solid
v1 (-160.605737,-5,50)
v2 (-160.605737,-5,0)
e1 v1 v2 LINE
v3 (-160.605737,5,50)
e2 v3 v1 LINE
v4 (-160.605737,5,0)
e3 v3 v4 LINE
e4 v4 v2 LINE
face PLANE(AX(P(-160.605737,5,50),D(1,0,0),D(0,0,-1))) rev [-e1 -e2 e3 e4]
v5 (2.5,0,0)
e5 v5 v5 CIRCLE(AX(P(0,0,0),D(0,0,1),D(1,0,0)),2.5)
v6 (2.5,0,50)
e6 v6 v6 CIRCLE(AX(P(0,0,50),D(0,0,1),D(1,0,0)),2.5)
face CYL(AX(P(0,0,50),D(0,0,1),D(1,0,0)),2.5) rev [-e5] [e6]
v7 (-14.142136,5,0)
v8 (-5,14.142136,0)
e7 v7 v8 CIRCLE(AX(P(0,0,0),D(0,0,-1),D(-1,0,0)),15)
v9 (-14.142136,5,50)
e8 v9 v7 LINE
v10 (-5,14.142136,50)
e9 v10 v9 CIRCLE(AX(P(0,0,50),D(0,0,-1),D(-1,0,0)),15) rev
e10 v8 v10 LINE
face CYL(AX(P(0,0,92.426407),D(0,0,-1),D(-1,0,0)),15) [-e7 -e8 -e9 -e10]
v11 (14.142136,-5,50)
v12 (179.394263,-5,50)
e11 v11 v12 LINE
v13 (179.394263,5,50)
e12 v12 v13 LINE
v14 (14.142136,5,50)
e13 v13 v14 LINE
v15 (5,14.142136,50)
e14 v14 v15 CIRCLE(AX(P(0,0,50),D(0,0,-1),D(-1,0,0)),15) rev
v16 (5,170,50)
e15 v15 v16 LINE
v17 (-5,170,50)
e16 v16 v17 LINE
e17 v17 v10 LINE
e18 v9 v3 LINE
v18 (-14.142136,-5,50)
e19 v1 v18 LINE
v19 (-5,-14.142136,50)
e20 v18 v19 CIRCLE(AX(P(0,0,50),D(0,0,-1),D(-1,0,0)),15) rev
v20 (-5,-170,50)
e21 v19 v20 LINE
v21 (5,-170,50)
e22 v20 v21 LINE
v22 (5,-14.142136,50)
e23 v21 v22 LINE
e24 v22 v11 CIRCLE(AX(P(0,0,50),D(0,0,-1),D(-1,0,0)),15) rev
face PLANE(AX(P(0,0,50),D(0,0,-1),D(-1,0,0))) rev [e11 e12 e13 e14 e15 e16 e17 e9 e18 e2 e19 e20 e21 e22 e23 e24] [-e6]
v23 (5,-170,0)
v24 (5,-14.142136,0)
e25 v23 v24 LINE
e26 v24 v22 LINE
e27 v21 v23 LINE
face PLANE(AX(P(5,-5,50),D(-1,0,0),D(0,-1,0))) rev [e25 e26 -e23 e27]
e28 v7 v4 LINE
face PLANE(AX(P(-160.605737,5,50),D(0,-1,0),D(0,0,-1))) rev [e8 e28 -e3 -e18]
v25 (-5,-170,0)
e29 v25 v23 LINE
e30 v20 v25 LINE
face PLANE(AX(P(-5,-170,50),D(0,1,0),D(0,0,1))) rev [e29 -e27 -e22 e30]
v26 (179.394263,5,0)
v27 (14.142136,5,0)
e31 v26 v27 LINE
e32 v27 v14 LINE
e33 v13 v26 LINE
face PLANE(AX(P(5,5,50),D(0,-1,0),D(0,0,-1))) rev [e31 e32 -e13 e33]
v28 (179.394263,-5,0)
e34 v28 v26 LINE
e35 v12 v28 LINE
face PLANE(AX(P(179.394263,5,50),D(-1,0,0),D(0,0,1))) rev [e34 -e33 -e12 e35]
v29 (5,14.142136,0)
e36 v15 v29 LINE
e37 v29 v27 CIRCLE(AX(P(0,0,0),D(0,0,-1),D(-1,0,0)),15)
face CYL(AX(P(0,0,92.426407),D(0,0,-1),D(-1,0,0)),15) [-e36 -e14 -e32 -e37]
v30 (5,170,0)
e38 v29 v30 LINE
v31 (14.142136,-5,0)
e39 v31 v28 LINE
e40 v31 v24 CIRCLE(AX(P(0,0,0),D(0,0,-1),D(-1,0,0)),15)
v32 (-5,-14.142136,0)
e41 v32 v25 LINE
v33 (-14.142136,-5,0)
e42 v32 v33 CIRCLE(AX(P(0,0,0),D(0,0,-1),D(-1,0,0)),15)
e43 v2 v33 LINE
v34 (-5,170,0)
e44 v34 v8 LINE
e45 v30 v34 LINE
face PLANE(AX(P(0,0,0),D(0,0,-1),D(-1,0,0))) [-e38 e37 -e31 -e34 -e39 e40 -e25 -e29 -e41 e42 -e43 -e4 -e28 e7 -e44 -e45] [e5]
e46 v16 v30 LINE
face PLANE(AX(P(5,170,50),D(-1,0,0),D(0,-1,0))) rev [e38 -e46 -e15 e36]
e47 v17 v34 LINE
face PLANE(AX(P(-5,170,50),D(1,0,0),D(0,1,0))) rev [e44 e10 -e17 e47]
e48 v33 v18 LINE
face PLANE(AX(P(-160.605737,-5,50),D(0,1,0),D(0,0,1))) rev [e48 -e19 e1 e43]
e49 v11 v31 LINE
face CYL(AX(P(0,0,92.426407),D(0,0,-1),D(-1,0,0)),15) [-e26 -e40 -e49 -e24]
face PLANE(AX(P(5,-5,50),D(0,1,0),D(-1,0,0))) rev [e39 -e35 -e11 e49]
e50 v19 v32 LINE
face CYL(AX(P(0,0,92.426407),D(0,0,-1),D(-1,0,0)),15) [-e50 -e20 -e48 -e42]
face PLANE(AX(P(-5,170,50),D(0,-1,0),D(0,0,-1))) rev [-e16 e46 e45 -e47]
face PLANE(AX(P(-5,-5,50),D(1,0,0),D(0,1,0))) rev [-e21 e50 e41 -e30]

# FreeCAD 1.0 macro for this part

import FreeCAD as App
import Part
import Sketcher
Q = App.Units.Quantity

doc = App.newDocument("Part")
params = doc.addObject("Spreadsheet::Sheet", "Params")
for row, (alias, value) in enumerate([
    ("sketch1_width", "10 mm"),
    ("sketch1_height", "165 mm"),
    ("pad1_length", "50 mm"),
    ("sketch2_diameter", "30 mm"),
    ("pad2_length", "50 mm"),
    ("sketch3_diameter", "5 mm"),
    ("hole_diameter", "5 mm"),
], start=1):
    params.set(f"A{row}", alias)
    params.set(f"B{row}", "=" + value)
    params.setAlias(f"B{row}", alias)

body = doc.addObject("PartDesign::Body", "Body")

# Sketch on XY plane
sketch1 = doc.addObject("Sketcher::SketchObject", "Sketch")
body.addObject(sketch1)
sketch1.AttachmentSupport = (doc.XY_Plane, [""])
sketch1.MapMode = "FlatFace"
sketch1.addGeometry([
    Part.LineSegment(App.Vector(-5, 5, 0), App.Vector(-161, 5, 0)),  # 0
    Part.LineSegment(App.Vector(-161, 5, 0), App.Vector(-161, -5, 0)),  # 1
    Part.LineSegment(App.Vector(-161, -5, 0), App.Vector(-5, -5, 0)),  # 2
    Part.LineSegment(App.Vector(-5, -5, 0), App.Vector(-5, -170, 0)),  # 3
    Part.LineSegment(App.Vector(-5, -170, 0), App.Vector(5, -170, 0)),  # 4
    Part.LineSegment(App.Vector(5, -170, 0), App.Vector(5, -5, 0)),  # 5
    Part.LineSegment(App.Vector(5, -5, 0), App.Vector(179, -5, 0)),  # 6
    Part.LineSegment(App.Vector(179, -5, 0), App.Vector(179, 5, 0)),  # 7
    Part.LineSegment(App.Vector(179, 5, 0), App.Vector(5, 5, 0)),  # 8
    Part.LineSegment(App.Vector(5, 5, 0), App.Vector(5, 170, 0)),  # 9
    Part.LineSegment(App.Vector(5, 170, 0), App.Vector(-5, 170, 0)),  # 10
    Part.LineSegment(App.Vector(-5, 170, 0), App.Vector(-5, 5, 0)),  # 11
], False)
sketch1.addConstraint([
    Sketcher.Constraint("Coincident", 0, 2, 1, 1),
    Sketcher.Constraint("Coincident", 1, 2, 2, 1),
    Sketcher.Constraint("Coincident", 2, 2, 3, 1),
    Sketcher.Constraint("Coincident", 3, 2, 4, 1),
    Sketcher.Constraint("Coincident", 4, 2, 5, 1),
    Sketcher.Constraint("Coincident", 5, 2, 6, 1),
    Sketcher.Constraint("Coincident", 6, 2, 7, 1),
    Sketcher.Constraint("Coincident", 7, 2, 8, 1),
    Sketcher.Constraint("Coincident", 8, 2, 9, 1),
    Sketcher.Constraint("Coincident", 9, 2, 10, 1),
    Sketcher.Constraint("Coincident", 10, 2, 11, 1),
    Sketcher.Constraint("Coincident", 11, 2, 0, 1),
    Sketcher.Constraint("Horizontal", 0),
    Sketcher.Constraint("Vertical", 1),
    Sketcher.Constraint("Horizontal", 2),
    Sketcher.Constraint("Vertical", 3),
    Sketcher.Constraint("Horizontal", 4),
    Sketcher.Constraint("Vertical", 5),
    Sketcher.Constraint("Horizontal", 6),
    Sketcher.Constraint("Vertical", 7),
    Sketcher.Constraint("Horizontal", 8),
    Sketcher.Constraint("Vertical", 9),
    Sketcher.Constraint("Horizontal", 10),
    Sketcher.Constraint("Vertical", 11),
    Sketcher.Constraint("Symmetric", 2, 2, 8, 2, -1, 1),
    Sketcher.Constraint("Symmetric", 4, 2, 10, 2, -1, 1),
    Sketcher.Constraint("Symmetric", 2, 2, 5, 2, -2),
    Sketcher.Constraint("Horizontal", 0, 2, 7, 2),
    Sketcher.Constraint("Equal", 10, 1),
    Sketcher.Constraint("DistanceX", 4, 1, 4, 2, Q("10 mm")),
    Sketcher.Constraint("DistanceY", 3, 2, 3, 1, Q("165 mm")),
    Sketcher.Constraint("DistanceX", 1, 2, 6, 2, Q("340 mm")),
    Sketcher.Constraint("DistanceX", 0, 2, 0, 1, Q("155.605737 mm")),
])
sketch1.setExpression("Constraints[29]", "Params.sketch1_width")
sketch1.setExpression("Constraints[30]", "Params.sketch1_height")
pad1 = doc.addObject("PartDesign::Pad", "Pad")
body.addObject(pad1)
pad1.Profile = sketch1
pad1.setExpression("Length", "Params.pad1_length")

# Sketch on XY plane
sketch2 = doc.addObject("Sketcher::SketchObject", "Sketch001")
body.addObject(sketch2)
sketch2.AttachmentSupport = (doc.XY_Plane, [""])
sketch2.MapMode = "FlatFace"
sketch2.addGeometry(Part.Circle(App.Vector(0, 0, 0), App.Vector(0, 0, 1), 15), False)
sketch2.addConstraint([
    Sketcher.Constraint("Coincident", 0, 3, -1, 1),
    Sketcher.Constraint("Diameter", 0, Q("30 mm")),
])
sketch2.setExpression("Constraints[1]", "Params.sketch2_diameter")
pad2 = doc.addObject("PartDesign::Pad", "Pad001")
body.addObject(pad2)
pad2.Profile = sketch2
pad2.setExpression("Length", "Params.pad2_length")

# Sketch on XY plane
sketch3 = doc.addObject("Sketcher::SketchObject", "Sketch002")
body.addObject(sketch3)
sketch3.AttachmentSupport = (doc.XY_Plane, [""])
sketch3.MapMode = "FlatFace"
sketch3.AttachmentOffset = App.Placement(App.Vector(0, 0, 50), App.Rotation())
sketch3.addGeometry(Part.Circle(App.Vector(0, 0, 0), App.Vector(0, 0, 1), 2.5), False)
sketch3.addConstraint([
    Sketcher.Constraint("Coincident", 0, 3, -1, 1),
    Sketcher.Constraint("Diameter", 0, Q("5 mm")),
])
sketch3.setExpression("Constraints[1]", "Params.sketch3_diameter")
doc.recompute()
hole = doc.addObject("PartDesign::Hole", "Hole")
body.addObject(hole)
hole.Profile = sketch3
hole.ThreadType = "None"
hole.setExpression("Diameter", "Params.hole_diameter")
hole.DepthType = "ThroughAll"

doc.recompute()
